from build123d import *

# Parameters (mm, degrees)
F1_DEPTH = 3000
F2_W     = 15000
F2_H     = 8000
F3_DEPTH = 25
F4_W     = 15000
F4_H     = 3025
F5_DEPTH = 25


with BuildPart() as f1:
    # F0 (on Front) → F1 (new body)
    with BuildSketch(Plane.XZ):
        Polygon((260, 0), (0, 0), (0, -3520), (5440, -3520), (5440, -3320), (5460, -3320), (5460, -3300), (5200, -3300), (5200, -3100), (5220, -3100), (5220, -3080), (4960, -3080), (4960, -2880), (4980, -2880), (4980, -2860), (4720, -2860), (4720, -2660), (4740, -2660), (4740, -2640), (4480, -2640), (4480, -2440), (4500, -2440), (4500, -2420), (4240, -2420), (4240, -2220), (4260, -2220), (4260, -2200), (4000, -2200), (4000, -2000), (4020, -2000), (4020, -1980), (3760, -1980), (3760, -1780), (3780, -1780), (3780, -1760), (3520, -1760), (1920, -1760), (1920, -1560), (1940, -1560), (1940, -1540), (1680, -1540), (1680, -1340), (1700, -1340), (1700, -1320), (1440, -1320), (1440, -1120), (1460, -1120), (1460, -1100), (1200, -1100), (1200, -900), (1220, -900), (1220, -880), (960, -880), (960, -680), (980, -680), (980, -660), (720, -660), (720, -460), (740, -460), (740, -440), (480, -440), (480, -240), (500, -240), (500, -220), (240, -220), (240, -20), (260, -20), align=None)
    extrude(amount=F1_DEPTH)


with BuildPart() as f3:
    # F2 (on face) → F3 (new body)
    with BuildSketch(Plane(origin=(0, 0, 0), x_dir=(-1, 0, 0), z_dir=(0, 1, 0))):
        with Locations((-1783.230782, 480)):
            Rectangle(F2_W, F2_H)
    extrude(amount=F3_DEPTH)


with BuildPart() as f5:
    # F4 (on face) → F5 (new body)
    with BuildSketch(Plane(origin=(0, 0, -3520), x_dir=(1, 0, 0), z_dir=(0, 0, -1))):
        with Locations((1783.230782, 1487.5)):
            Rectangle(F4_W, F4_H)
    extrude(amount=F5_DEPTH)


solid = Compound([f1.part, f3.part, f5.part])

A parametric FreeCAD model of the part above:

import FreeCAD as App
import Part
import Sketcher
from FreeCAD import Vector
Q = App.Units.Quantity


def add_polygon(sketch, points):
    """Adds a closed chain of lines whose ends are joined by coincident constraints."""
    first, n = sketch.GeometryCount, len(points)
    for a, b in zip(points, points[1:] + points[:1]):
        sketch.addGeometry(Part.LineSegment(App.Vector(*a, 0), App.Vector(*b, 0)), False)
    for i in range(n):
        sketch.addConstraint(Sketcher.Constraint("Coincident", first + i, 2, first + (i + 1) % n, 1))

doc = App.newDocument("Part")
params = doc.addObject("Spreadsheet::Sheet", "Params")
for row, (alias, value) in enumerate([
    ("sketch1_width", "260 mm"),
    ("sketch1_width2", "5440 mm"),
    ("sketch1_width3", "20 mm"),
    ("sketch1_height", "3520 mm"),
    ("pad1_length", "3000 mm"),
    ("sketch2_width", "15000 mm"),
    ("sketch2_height", "8000 mm"),
    ("pad2_length", "25 mm"),
    ("sketch3_width", "15000 mm"),
    ("sketch3_height", "3025 mm"),
    ("pad3_length", "25 mm"),
], start=1):
    params.set(f"A{row}", alias)
    params.set(f"B{row}", "=" + value)
    params.setAlias(f"B{row}", alias)

body = doc.addObject("PartDesign::Body", "Body")

sketch1 = body.newObject("Sketcher::SketchObject", "Sketch")
sketch1.AttachmentSupport = (doc.getObject("XZ_Plane"), [""])
sketch1.MapMode = "FlatFace"
add_polygon(sketch1, [(260, 0), (0, 0), (0, -3520), (5440, -3520), (5440, -3320), (5460, -3320), (5460, -3300), (5200, -3300), (5200, -3100), (5220, -3100), (5220, -3080), (4960, -3080), (4960, -2880), (4980, -2880), (4980, -2860), (4720, -2860), (4720, -2660), (4740, -2660), (4740, -2640), (4480, -2640), (4480, -2440), (4500, -2440), (4500, -2420), (4240, -2420), (4240, -2220), (4260, -2220), (4260, -2200), (4000, -2200), (4000, -2000), (4020, -2000), (4020, -1980), (3760, -1980), (3760, -1780), (3780, -1780), (3780, -1760), (1920, -1760), (1920, -1560), (1940, -1560), (1940, -1540), (1680, -1540), (1680, -1340), (1700, -1340), (1700, -1320), (1440, -1320), (1440, -1120), (1460, -1120), (1460, -1100), (1200, -1100), (1200, -900), (1220, -900), (1220, -880), (960, -880), (960, -680), (980, -680), (980, -660), (720, -660), (720, -460), (740, -460), (740, -440), (480, -440), (480, -240), (500, -240), (500, -220), (240, -220), (240, -20), (260, -20)])
sketch1.addConstraint([
    Sketcher.Constraint("Horizontal", 0),
    Sketcher.Constraint("Vertical", 1),
    Sketcher.Constraint("Horizontal", 2),
    Sketcher.Constraint("Vertical", 3),
    Sketcher.Constraint("Horizontal", 4),
    Sketcher.Constraint("Vertical", 5),
    Sketcher.Constraint("Horizontal", 6),
    Sketcher.Constraint("Vertical", 7),
    Sketcher.Constraint("Horizontal", 8),
    Sketcher.Constraint("Vertical", 9),
    Sketcher.Constraint("Horizontal", 10),
    Sketcher.Constraint("Vertical", 11),
    Sketcher.Constraint("Horizontal", 12),
    Sketcher.Constraint("Vertical", 13),
    Sketcher.Constraint("Horizontal", 14),
    Sketcher.Constraint("Vertical", 15),
    Sketcher.Constraint("Horizontal", 16),
    Sketcher.Constraint("Vertical", 17),
    Sketcher.Constraint("Horizontal", 18),
    Sketcher.Constraint("Vertical", 19),
    Sketcher.Constraint("Horizontal", 20),
    Sketcher.Constraint("Vertical", 21),
    Sketcher.Constraint("Horizontal", 22),
    Sketcher.Constraint("Vertical", 23),
    Sketcher.Constraint("Horizontal", 24),
    Sketcher.Constraint("Vertical", 25),
    Sketcher.Constraint("Horizontal", 26),
    Sketcher.Constraint("Vertical", 27),
    Sketcher.Constraint("Horizontal", 28),
    Sketcher.Constraint("Vertical", 29),
    Sketcher.Constraint("Horizontal", 30),
    Sketcher.Constraint("Vertical", 31),
    Sketcher.Constraint("Horizontal", 32),
    Sketcher.Constraint("Vertical", 33),
    Sketcher.Constraint("Horizontal", 34),
    Sketcher.Constraint("Vertical", 35),
    Sketcher.Constraint("Horizontal", 36),
    Sketcher.Constraint("Vertical", 37),
    Sketcher.Constraint("Horizontal", 38),
    Sketcher.Constraint("Vertical", 39),
    Sketcher.Constraint("Horizontal", 40),
    Sketcher.Constraint("Vertical", 41),
    Sketcher.Constraint("Horizontal", 42),
    Sketcher.Constraint("Vertical", 43),
    Sketcher.Constraint("Horizontal", 44),
    Sketcher.Constraint("Vertical", 45),
    Sketcher.Constraint("Horizontal", 46),
    Sketcher.Constraint("Vertical", 47),
    Sketcher.Constraint("Horizontal", 48),
    Sketcher.Constraint("Vertical", 49),
    Sketcher.Constraint("Horizontal", 50),
    Sketcher.Constraint("Vertical", 51),
    Sketcher.Constraint("Horizontal", 52),
    Sketcher.Constraint("Vertical", 53),
    Sketcher.Constraint("Horizontal", 54),
    Sketcher.Constraint("Vertical", 55),
    Sketcher.Constraint("Horizontal", 56),
    Sketcher.Constraint("Vertical", 57),
    Sketcher.Constraint("Horizontal", 58),
    Sketcher.Constraint("Vertical", 59),
    Sketcher.Constraint("Horizontal", 60),
    Sketcher.Constraint("Vertical", 61),
    Sketcher.Constraint("Horizontal", 62),
    Sketcher.Constraint("Vertical", 63),
    Sketcher.Constraint("Horizontal", 64),
    Sketcher.Constraint("Vertical", 65),
    Sketcher.Constraint("Coincident", 0, 2, -1, 1),
    Sketcher.Constraint("Equal", 0, 6),
    Sketcher.Constraint("Equal", 4, 8),
    Sketcher.Constraint("Equal", 6, 10),
    Sketcher.Constraint("Equal", 8, 12),
    Sketcher.Constraint("Equal", 10, 14),
    Sketcher.Constraint("Equal", 12, 16),
    Sketcher.Constraint("Equal", 14, 18),
    Sketcher.Constraint("Equal", 16, 20),
    Sketcher.Constraint("Equal", 18, 22),
    Sketcher.Constraint("Equal", 20, 24),
    Sketcher.Constraint("Equal", 22, 26),
    Sketcher.Constraint("Equal", 24, 28),
    Sketcher.Constraint("Equal", 26, 30),
    Sketcher.Constraint("Equal", 28, 32),
    Sketcher.Constraint("Equal", 32, 36),
    Sketcher.Constraint("Equal", 30, 38),
    Sketcher.Constraint("Equal", 36, 40),
    Sketcher.Constraint("Equal", 38, 42),
    Sketcher.Constraint("Equal", 40, 44),
    Sketcher.Constraint("Equal", 42, 46),
    Sketcher.Constraint("Equal", 44, 48),
    Sketcher.Constraint("Equal", 46, 50),
    Sketcher.Constraint("Equal", 48, 52),
    Sketcher.Constraint("Equal", 50, 54),
    Sketcher.Constraint("Equal", 52, 56),
    Sketcher.Constraint("Equal", 54, 58),
    Sketcher.Constraint("Equal", 56, 60),
    Sketcher.Constraint("Equal", 58, 62),
    Sketcher.Constraint("Equal", 60, 64),
    Sketcher.Constraint("Equal", 64, 5),
    Sketcher.Constraint("Equal", 3, 7),
    Sketcher.Constraint("Equal", 5, 9),
    Sketcher.Constraint("Equal", 7, 11),
    Sketcher.Constraint("Equal", 9, 13),
    Sketcher.Constraint("Equal", 11, 15),
    Sketcher.Constraint("Equal", 13, 17),
    Sketcher.Constraint("Equal", 15, 19),
    Sketcher.Constraint("Equal", 17, 21),
    Sketcher.Constraint("Equal", 19, 23),
    Sketcher.Constraint("Equal", 21, 25),
    Sketcher.Constraint("Equal", 23, 27),
    Sketcher.Constraint("Equal", 25, 29),
    Sketcher.Constraint("Equal", 27, 31),
    Sketcher.Constraint("Equal", 29, 33),
    Sketcher.Constraint("Equal", 31, 35),
    Sketcher.Constraint("Equal", 33, 37),
    Sketcher.Constraint("Equal", 35, 39),
    Sketcher.Constraint("Equal", 37, 41),
    Sketcher.Constraint("Equal", 39, 43),
    Sketcher.Constraint("Equal", 41, 45),
    Sketcher.Constraint("Equal", 43, 47),
    Sketcher.Constraint("Equal", 45, 49),
    Sketcher.Constraint("Equal", 47, 51),
    Sketcher.Constraint("Equal", 49, 53),
    Sketcher.Constraint("Equal", 51, 55),
    Sketcher.Constraint("Equal", 53, 57),
    Sketcher.Constraint("Equal", 55, 59),
    Sketcher.Constraint("Equal", 57, 61),
    Sketcher.Constraint("Equal", 59, 63),
    Sketcher.Constraint("Equal", 61, 65),
    Sketcher.Constraint("DistanceX", 0, 2, 0, 1, Q("260 mm")),
    Sketcher.Constraint("DistanceX", 2, 1, 2, 2, Q("5440 mm")),
    Sketcher.Constraint("DistanceX", 4, 1, 4, 2, Q("20 mm")),
    Sketcher.Constraint("DistanceY", 1, 2, 1, 1, Q("3520 mm")),
])
sketch1.setExpression("Constraints[193]", "Params.sketch1_width")
sketch1.setExpression("Constraints[194]", "Params.sketch1_width2")
sketch1.setExpression("Constraints[195]", "Params.sketch1_width3")
sketch1.setExpression("Constraints[196]", "Params.sketch1_height")
pad1 = body.newObject("PartDesign::Pad", "Pad")
pad1.Profile = sketch1
pad1.setExpression("Length", "Params.pad1_length")
body2 = doc.addObject("PartDesign::Body", "Body001")

sketch2 = body2.newObject("Sketcher::SketchObject", "Sketch001")
sketch2.AttachmentSupport = (doc.getObject("XZ_Plane001"), [""])
sketch2.MapMode = "FlatFace"
add_polygon(sketch2, [(9283, 4480), (9283, -3520), (-5717, -3520), (-5717, 4480)])
sketch2.addConstraint([
    Sketcher.Constraint("Vertical", 0),
    Sketcher.Constraint("Horizontal", 1),
    Sketcher.Constraint("Vertical", 2),
    Sketcher.Constraint("Horizontal", 3),
    Sketcher.Constraint("DistanceX", 1, 2, 1, 1, Q("15000 mm")),
    Sketcher.Constraint("DistanceY", 0, 2, 0, 1, Q("8000 mm")),
    Sketcher.Constraint("DistanceY", 0, 2, -1, 1, Q("3520 mm")),
    Sketcher.Constraint("DistanceX", 1, 2, -1, 1, Q("5716.769218 mm")),
])
sketch2.setExpression("Constraints[8]", "Params.sketch2_width")
sketch2.setExpression("Constraints[9]", "Params.sketch2_height")
pad2 = body2.newObject("PartDesign::Pad", "Pad001")
pad2.Profile = sketch2
pad2.setExpression("Length", "Params.pad2_length")
pad2.Reversed = True
body3 = doc.addObject("PartDesign::Body", "Body002")

sketch3 = body3.newObject("Sketcher::SketchObject", "Sketch002")
sketch3.AttachmentSupport = (doc.getObject("XY_Plane002"), [""])
sketch3.MapMode = "FlatFace"
sketch3.AttachmentOffset = App.Placement(Vector(0, 0, -3520), App.Rotation())
add_polygon(sketch3, [(-5717, -3000), (-5717, 25), (9283, 25), (9283, -3000)])
sketch3.addConstraint([
    Sketcher.Constraint("Vertical", 0),
    Sketcher.Constraint("Horizontal", 1),
    Sketcher.Constraint("Vertical", 2),
    Sketcher.Constraint("Horizontal", 3),
    Sketcher.Constraint("DistanceX", 1, 1, 1, 2, Q("15000 mm")),
    Sketcher.Constraint("DistanceY", 0, 1, 0, 2, Q("3025 mm")),
    Sketcher.Constraint("DistanceY", -1, 1, 0, 2, Q("25 mm")),
    Sketcher.Constraint("DistanceX", 0, 2, -1, 1, Q("5716.769218 mm")),
])
sketch3.setExpression("Constraints[8]", "Params.sketch3_width")
sketch3.setExpression("Constraints[9]", "Params.sketch3_height")
pad3 = body3.newObject("PartDesign::Pad", "Pad002")
pad3.Profile = sketch3
pad3.setExpression("Length", "Params.pad3_length")
pad3.Reversed = True

doc.recompute()
